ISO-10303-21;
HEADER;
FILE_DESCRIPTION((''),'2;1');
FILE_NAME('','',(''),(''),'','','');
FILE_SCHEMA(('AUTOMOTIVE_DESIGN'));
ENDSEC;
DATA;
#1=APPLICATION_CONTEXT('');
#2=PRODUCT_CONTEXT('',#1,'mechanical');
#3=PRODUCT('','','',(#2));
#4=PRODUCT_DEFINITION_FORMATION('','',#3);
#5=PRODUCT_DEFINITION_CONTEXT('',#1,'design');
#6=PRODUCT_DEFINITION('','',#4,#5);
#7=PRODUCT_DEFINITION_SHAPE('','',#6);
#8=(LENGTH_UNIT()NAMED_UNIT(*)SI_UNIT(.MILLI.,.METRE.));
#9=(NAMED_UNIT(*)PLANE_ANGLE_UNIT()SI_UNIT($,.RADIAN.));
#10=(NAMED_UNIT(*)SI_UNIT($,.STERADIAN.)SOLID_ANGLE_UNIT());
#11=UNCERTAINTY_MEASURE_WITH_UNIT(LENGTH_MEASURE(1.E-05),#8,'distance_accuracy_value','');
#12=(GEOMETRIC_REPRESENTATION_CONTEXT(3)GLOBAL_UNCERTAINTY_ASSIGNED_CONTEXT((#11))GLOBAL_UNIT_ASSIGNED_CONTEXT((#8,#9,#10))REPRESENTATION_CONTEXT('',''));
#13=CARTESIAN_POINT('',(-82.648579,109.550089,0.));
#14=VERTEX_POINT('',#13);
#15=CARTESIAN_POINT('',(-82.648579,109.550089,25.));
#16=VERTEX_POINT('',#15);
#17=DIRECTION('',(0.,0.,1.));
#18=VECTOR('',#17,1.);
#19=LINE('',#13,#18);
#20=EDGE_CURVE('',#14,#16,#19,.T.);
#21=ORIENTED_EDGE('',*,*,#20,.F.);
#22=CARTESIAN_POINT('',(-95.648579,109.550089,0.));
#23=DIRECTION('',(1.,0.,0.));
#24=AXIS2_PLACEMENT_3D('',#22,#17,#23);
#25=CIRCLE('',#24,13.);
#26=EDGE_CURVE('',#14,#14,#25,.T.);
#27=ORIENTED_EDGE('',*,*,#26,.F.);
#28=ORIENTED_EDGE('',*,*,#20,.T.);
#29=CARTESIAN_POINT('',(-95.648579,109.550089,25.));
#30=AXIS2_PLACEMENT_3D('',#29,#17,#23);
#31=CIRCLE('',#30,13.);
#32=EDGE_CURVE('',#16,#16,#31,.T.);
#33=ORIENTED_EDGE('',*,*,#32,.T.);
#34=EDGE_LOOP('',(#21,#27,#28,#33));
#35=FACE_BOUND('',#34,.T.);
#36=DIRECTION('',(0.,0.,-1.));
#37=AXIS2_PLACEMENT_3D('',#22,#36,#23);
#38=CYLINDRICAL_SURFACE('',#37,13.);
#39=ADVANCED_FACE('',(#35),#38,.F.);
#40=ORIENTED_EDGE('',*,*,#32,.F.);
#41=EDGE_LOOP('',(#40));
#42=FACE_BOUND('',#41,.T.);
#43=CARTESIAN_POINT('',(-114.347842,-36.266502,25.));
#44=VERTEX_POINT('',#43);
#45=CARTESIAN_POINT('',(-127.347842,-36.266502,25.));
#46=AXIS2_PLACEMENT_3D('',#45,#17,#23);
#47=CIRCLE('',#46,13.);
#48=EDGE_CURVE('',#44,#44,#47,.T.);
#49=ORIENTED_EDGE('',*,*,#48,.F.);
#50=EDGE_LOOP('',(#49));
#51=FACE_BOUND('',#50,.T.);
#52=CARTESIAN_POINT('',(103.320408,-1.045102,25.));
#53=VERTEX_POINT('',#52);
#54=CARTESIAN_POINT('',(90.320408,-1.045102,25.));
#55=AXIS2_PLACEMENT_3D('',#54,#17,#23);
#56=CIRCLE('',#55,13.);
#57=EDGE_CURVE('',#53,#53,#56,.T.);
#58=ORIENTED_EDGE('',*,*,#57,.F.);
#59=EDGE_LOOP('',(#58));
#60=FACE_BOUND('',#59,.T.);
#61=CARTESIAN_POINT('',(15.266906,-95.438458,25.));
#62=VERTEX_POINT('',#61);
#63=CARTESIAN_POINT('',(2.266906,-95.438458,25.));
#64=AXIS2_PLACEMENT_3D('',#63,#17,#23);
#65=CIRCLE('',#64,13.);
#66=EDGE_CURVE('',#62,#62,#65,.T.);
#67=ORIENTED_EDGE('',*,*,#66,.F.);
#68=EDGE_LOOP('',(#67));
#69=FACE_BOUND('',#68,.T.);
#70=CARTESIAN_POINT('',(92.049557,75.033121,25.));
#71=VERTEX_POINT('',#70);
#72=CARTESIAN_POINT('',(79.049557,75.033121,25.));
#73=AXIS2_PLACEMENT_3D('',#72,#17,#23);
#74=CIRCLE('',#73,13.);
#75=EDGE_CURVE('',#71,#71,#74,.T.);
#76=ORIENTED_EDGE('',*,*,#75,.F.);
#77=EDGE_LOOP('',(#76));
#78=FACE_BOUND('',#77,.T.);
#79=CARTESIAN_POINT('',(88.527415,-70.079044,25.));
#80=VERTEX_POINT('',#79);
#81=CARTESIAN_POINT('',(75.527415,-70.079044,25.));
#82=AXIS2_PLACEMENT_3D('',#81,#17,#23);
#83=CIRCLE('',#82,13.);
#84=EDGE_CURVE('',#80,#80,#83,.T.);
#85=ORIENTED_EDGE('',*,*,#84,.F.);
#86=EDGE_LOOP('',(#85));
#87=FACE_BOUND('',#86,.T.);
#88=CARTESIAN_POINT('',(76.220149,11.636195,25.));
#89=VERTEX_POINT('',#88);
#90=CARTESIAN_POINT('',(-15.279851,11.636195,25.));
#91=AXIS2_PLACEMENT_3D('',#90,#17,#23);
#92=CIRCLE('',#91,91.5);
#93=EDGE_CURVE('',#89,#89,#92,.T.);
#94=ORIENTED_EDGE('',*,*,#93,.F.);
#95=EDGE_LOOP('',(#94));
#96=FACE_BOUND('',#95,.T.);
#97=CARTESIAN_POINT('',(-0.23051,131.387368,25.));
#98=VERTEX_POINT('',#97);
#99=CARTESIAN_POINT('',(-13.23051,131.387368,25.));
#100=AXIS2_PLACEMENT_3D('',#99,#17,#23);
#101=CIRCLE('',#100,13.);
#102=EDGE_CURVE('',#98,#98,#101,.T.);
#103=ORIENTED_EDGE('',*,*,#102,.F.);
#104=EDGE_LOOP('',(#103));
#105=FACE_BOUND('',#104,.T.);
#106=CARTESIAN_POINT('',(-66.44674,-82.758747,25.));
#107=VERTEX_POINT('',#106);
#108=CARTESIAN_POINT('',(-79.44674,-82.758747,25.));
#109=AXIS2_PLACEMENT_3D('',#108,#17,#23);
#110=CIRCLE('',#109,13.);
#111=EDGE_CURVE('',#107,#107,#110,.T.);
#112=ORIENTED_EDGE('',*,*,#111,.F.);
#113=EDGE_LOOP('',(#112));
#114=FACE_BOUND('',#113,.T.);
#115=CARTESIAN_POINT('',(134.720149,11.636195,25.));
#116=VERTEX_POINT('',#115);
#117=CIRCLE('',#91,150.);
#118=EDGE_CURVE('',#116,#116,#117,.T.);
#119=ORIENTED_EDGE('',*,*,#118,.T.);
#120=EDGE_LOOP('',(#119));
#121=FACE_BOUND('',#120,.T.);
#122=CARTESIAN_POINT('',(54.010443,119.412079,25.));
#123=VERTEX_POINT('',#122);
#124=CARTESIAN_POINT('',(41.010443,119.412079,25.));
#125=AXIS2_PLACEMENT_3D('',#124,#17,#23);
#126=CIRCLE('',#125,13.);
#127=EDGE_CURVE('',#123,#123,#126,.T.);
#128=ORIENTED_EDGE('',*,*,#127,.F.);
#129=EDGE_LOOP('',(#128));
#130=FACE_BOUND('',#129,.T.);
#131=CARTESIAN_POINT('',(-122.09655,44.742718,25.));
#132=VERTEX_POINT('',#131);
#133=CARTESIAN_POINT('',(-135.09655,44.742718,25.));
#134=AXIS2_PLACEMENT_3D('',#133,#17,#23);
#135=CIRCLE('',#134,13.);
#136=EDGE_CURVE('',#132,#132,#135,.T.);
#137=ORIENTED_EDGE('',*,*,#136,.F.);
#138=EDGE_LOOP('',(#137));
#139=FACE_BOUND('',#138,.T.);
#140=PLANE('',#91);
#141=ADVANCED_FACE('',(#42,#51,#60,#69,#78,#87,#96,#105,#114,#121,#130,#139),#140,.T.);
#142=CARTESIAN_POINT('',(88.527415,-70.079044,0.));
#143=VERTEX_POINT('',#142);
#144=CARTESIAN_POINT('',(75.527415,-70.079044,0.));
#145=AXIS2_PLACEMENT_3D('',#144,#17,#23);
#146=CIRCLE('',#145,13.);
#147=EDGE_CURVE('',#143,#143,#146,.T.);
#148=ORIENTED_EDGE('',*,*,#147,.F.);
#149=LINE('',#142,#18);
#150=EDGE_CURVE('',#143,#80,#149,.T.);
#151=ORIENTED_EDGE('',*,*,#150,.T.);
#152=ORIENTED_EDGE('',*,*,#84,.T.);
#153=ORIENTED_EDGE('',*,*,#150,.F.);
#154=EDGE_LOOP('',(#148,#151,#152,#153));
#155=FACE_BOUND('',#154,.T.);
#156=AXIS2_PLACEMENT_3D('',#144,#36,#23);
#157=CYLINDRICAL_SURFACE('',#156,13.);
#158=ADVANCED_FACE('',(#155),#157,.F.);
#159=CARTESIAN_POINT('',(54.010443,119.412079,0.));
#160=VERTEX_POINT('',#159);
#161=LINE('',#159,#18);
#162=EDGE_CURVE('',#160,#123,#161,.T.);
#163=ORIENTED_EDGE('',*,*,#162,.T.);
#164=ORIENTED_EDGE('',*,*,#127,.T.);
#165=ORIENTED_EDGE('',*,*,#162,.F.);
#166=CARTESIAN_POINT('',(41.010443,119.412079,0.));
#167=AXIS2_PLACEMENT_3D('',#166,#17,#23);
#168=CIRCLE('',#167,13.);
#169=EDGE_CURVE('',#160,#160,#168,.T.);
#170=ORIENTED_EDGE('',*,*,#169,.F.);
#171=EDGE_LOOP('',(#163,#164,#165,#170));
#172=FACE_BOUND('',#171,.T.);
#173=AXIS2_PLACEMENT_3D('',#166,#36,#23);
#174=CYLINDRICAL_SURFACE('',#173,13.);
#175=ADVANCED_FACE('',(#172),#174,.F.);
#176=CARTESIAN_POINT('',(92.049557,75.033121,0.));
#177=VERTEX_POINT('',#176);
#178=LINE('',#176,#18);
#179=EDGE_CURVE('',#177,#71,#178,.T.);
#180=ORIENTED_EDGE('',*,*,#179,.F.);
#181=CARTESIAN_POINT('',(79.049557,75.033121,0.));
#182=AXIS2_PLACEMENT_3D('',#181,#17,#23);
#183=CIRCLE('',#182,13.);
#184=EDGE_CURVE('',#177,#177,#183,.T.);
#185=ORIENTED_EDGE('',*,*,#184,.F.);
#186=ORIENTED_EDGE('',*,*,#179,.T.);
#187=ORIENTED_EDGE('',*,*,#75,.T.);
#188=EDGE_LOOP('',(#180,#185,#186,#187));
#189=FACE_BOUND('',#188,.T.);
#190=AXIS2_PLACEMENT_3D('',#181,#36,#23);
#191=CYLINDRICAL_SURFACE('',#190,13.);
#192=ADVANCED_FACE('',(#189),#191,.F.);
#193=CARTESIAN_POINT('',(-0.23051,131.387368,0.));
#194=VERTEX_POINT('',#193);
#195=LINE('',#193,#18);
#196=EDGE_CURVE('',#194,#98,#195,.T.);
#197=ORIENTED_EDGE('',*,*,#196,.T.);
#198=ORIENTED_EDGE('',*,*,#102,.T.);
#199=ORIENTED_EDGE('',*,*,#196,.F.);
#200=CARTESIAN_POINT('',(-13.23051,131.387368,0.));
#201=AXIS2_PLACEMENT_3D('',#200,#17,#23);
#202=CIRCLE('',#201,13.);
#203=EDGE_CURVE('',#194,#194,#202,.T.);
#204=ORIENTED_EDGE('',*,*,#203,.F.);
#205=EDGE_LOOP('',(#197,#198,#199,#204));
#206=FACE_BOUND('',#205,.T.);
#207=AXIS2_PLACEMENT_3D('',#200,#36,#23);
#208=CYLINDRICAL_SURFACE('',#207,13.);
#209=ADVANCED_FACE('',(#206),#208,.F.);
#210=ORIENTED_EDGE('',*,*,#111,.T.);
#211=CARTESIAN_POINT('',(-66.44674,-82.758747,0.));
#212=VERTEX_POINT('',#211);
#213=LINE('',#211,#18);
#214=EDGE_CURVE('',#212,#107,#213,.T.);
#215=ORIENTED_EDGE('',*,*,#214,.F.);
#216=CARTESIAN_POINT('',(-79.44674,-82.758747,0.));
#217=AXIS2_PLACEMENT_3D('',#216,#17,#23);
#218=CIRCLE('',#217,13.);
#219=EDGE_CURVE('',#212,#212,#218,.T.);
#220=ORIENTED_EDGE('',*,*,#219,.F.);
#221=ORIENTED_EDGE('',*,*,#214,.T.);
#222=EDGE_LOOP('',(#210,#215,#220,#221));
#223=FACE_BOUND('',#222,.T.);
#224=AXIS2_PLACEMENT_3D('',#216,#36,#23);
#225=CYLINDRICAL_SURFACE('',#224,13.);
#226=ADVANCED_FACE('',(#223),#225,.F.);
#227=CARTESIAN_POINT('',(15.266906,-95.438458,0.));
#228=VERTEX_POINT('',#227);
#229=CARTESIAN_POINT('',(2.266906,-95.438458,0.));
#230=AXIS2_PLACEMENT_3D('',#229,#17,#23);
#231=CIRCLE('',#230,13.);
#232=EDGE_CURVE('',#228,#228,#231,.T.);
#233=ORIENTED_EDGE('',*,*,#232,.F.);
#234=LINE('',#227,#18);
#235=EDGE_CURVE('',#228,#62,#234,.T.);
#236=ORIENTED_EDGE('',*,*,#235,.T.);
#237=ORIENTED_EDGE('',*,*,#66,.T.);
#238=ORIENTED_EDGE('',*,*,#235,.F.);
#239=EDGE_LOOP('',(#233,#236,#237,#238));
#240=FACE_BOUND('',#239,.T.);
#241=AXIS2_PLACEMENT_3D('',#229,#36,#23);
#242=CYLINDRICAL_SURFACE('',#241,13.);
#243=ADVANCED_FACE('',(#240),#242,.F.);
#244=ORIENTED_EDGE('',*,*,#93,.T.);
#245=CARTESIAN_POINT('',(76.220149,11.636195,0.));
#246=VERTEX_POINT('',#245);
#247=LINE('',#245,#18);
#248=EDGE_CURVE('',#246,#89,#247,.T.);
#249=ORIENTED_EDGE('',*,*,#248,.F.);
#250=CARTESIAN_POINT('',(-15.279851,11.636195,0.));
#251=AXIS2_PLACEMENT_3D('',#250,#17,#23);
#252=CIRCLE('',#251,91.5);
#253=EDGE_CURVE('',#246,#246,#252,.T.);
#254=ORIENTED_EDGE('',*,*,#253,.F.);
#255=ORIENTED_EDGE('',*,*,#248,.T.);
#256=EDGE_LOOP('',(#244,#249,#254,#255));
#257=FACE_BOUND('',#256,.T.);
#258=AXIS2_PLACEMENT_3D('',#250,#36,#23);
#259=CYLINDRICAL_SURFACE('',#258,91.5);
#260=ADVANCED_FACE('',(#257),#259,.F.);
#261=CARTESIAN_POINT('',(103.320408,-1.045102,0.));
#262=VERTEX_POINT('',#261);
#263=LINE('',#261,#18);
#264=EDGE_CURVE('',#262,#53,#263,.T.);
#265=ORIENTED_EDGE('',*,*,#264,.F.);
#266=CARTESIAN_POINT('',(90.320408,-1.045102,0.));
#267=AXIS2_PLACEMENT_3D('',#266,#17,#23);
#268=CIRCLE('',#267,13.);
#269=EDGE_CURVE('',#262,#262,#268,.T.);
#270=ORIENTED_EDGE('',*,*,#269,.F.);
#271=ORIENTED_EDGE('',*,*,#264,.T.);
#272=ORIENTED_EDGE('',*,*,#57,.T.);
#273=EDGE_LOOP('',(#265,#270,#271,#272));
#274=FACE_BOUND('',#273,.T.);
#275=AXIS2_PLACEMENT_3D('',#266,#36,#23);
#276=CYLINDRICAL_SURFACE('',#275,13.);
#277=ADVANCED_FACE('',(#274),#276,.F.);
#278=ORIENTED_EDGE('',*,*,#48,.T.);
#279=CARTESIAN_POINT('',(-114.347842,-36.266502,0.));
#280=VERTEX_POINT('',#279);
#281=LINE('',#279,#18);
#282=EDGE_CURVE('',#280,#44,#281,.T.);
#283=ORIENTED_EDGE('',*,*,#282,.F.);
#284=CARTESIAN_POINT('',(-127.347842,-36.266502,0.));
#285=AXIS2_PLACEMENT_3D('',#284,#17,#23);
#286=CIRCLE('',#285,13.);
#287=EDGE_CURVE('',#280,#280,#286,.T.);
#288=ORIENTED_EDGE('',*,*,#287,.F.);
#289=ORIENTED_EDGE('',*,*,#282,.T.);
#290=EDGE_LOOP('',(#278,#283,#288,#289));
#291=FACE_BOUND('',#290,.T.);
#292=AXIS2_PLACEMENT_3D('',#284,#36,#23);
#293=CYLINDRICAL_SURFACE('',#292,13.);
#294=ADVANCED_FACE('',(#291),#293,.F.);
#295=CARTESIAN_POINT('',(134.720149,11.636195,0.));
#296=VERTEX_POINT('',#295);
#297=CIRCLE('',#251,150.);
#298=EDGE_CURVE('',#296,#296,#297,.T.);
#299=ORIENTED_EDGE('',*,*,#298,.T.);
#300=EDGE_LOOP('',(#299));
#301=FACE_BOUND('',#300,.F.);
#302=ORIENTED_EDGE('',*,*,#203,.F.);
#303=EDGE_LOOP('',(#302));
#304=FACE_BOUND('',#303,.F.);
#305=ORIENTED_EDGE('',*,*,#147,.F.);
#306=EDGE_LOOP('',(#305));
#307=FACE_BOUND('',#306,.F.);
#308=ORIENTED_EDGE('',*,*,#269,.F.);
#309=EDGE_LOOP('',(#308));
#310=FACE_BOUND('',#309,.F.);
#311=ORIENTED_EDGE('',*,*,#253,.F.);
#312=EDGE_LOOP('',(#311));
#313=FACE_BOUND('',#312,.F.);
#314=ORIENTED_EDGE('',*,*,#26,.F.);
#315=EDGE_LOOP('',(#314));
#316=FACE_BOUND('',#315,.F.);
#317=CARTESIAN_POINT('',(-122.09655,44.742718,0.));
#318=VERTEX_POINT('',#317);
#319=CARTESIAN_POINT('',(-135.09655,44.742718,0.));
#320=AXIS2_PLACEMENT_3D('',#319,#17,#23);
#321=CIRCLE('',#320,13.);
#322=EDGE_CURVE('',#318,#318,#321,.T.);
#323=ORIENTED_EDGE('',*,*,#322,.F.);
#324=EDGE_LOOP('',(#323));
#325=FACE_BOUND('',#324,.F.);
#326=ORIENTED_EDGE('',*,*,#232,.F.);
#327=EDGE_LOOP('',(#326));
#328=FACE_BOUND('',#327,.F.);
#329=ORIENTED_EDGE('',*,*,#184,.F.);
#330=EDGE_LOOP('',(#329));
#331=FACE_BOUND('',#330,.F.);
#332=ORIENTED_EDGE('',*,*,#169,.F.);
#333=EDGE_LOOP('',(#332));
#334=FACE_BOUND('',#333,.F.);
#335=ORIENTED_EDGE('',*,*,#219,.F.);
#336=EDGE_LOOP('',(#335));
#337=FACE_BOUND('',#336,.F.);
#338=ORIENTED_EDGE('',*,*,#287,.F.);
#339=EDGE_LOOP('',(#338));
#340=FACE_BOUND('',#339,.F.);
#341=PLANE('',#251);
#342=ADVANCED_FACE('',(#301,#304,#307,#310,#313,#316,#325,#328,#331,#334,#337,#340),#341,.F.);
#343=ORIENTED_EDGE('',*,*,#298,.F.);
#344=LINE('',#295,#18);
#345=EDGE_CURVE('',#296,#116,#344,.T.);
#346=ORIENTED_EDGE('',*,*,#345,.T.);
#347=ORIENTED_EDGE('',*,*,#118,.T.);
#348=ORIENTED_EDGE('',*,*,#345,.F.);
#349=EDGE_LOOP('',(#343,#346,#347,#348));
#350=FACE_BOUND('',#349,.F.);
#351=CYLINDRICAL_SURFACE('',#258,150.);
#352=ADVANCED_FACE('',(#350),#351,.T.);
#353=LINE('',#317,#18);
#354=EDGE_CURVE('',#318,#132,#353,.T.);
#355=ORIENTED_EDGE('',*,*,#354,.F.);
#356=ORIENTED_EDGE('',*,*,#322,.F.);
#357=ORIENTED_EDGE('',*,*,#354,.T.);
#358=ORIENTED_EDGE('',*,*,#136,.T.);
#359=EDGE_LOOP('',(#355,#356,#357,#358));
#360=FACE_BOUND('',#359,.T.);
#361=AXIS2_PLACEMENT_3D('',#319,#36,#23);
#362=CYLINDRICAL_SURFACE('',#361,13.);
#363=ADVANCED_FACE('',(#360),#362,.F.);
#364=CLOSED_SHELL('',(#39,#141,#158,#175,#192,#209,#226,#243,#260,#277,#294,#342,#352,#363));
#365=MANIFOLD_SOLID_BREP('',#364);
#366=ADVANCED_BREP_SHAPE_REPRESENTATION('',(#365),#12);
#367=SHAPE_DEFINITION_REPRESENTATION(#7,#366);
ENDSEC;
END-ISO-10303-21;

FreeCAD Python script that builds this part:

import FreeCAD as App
import Part
import Sketcher
from FreeCAD import Vector
Q = App.Units.Quantity

doc = App.newDocument("Part")
body = doc.addObject("PartDesign::Body", "Body")

sketch1 = body.newObject("Sketcher::SketchObject", "Sketch")
sketch1.AttachmentSupport = (doc.getObject("XY_Plane"), [""])
sketch1.MapMode = "FlatFace"
sketch1.addGeometry([
    Part.Circle(Vector(-15, 12, 0), Vector(0, 0, 1), 150),
    Part.Circle(Vector(-79, -83, 0), Vector(0, 0, 1), 13),
    Part.Circle(Vector(-127, -36, 0), Vector(0, 0, 1), 13),
    Part.Circle(Vector(2, -95, 0), Vector(0, 0, 1), 13),
    Part.Circle(Vector(76, -70, 0), Vector(0, 0, 1), 13),
    Part.Circle(Vector(-15, 12, 0), Vector(0, 0, 1), 92),
    Part.Circle(Vector(90, -1, 0), Vector(0, 0, 1), 13),
    Part.Circle(Vector(-135, 45, 0), Vector(0, 0, 1), 13),
    Part.Circle(Vector(-96, 110, 0), Vector(0, 0, 1), 13),
    Part.Circle(Vector(79, 75, 0), Vector(0, 0, 1), 13),
    Part.Circle(Vector(-13, 131, 0), Vector(0, 0, 1), 13),
    Part.Circle(Vector(41, 119, 0), Vector(0, 0, 1), 13),
], False)
sketch1.addConstraint([
    Sketcher.Constraint("Coincident", 5, 3, 0, 3),
    Sketcher.Constraint("Equal", 1, 2),
    Sketcher.Constraint("Equal", 2, 3),
    Sketcher.Constraint("Equal", 3, 4),
    Sketcher.Constraint("Equal", 4, 6),
    Sketcher.Constraint("Equal", 6, 7),
    Sketcher.Constraint("Equal", 7, 8),
    Sketcher.Constraint("Equal", 8, 9),
    Sketcher.Constraint("Equal", 9, 10),
    Sketcher.Constraint("Equal", 10, 11),
    Sketcher.Constraint("Diameter", 0, Q("300 mm")),
    Sketcher.Constraint("Diameter", 1, Q("26 mm")),
    Sketcher.Constraint("Diameter", 5, Q("183 mm")),
    Sketcher.Constraint("DistanceX", 2, 3, 1, 3, Q("47.901102 mm")),
    Sketcher.Constraint("DistanceX", 3, 3, 6, 3, Q("88.053502 mm")),
    Sketcher.Constraint("DistanceX", 7, 3, 0, 3, Q("119.816699 mm")),
    Sketcher.Constraint("DistanceX", 0, 3, -1, 1, Q("15.279851 mm")),
    Sketcher.Constraint("DistanceX", 1, 3, -1, 1, Q("79.44674 mm")),
    Sketcher.Constraint("DistanceX", -1, 1, 6, 3, Q("90.320408 mm")),
    Sketcher.Constraint("DistanceY", -1, 1, 7, 3, Q("44.742718 mm")),
    Sketcher.Constraint("DistanceX", 8, 3, -1, 1, Q("95.648579 mm")),
    Sketcher.Constraint("DistanceY", -1, 1, 8, 3, Q("109.550089 mm")),
    Sketcher.Constraint("DistanceY", -1, 1, 9, 3, Q("75.033121 mm")),
    Sketcher.Constraint("DistanceX", 10, 3, -1, 1, Q("13.23051 mm")),
    Sketcher.Constraint("DistanceY", -1, 1, 10, 3, Q("131.387368 mm")),
    Sketcher.Constraint("DistanceY", -1, 1, 11, 3, Q("119.412079 mm")),
    Sketcher.Constraint("DistanceY", 1, 3, 0, 3, Q("94.394942 mm")),
    Sketcher.Constraint("DistanceY", 3, 3, 1, 3, Q("12.679711 mm")),
    Sketcher.Constraint("DistanceX", 3, 3, 4, 3, Q("73.260509 mm")),
    Sketcher.Constraint("DistanceY", 4, 3, 0, 3, Q("81.715239 mm")),
    Sketcher.Constraint("DistanceY", 4, 3, 2, 3, Q("33.812542 mm")),
    Sketcher.Constraint("DistanceY", 4, 3, 6, 3, Q("69.033942 mm")),
    Sketcher.Constraint("DistanceY", 2, 3, 7, 3, Q("81.00922 mm")),
    Sketcher.Constraint("DistanceX", 9, 3, 6, 3, Q("11.270851 mm")),
    Sketcher.Constraint("DistanceX", -1, 1, 11, 3, Q("41.010443 mm")),
])
pad1 = body.newObject("PartDesign::Pad", "Pad")
pad1.Profile = sketch1
pad1.Length = 25

doc.recompute()
